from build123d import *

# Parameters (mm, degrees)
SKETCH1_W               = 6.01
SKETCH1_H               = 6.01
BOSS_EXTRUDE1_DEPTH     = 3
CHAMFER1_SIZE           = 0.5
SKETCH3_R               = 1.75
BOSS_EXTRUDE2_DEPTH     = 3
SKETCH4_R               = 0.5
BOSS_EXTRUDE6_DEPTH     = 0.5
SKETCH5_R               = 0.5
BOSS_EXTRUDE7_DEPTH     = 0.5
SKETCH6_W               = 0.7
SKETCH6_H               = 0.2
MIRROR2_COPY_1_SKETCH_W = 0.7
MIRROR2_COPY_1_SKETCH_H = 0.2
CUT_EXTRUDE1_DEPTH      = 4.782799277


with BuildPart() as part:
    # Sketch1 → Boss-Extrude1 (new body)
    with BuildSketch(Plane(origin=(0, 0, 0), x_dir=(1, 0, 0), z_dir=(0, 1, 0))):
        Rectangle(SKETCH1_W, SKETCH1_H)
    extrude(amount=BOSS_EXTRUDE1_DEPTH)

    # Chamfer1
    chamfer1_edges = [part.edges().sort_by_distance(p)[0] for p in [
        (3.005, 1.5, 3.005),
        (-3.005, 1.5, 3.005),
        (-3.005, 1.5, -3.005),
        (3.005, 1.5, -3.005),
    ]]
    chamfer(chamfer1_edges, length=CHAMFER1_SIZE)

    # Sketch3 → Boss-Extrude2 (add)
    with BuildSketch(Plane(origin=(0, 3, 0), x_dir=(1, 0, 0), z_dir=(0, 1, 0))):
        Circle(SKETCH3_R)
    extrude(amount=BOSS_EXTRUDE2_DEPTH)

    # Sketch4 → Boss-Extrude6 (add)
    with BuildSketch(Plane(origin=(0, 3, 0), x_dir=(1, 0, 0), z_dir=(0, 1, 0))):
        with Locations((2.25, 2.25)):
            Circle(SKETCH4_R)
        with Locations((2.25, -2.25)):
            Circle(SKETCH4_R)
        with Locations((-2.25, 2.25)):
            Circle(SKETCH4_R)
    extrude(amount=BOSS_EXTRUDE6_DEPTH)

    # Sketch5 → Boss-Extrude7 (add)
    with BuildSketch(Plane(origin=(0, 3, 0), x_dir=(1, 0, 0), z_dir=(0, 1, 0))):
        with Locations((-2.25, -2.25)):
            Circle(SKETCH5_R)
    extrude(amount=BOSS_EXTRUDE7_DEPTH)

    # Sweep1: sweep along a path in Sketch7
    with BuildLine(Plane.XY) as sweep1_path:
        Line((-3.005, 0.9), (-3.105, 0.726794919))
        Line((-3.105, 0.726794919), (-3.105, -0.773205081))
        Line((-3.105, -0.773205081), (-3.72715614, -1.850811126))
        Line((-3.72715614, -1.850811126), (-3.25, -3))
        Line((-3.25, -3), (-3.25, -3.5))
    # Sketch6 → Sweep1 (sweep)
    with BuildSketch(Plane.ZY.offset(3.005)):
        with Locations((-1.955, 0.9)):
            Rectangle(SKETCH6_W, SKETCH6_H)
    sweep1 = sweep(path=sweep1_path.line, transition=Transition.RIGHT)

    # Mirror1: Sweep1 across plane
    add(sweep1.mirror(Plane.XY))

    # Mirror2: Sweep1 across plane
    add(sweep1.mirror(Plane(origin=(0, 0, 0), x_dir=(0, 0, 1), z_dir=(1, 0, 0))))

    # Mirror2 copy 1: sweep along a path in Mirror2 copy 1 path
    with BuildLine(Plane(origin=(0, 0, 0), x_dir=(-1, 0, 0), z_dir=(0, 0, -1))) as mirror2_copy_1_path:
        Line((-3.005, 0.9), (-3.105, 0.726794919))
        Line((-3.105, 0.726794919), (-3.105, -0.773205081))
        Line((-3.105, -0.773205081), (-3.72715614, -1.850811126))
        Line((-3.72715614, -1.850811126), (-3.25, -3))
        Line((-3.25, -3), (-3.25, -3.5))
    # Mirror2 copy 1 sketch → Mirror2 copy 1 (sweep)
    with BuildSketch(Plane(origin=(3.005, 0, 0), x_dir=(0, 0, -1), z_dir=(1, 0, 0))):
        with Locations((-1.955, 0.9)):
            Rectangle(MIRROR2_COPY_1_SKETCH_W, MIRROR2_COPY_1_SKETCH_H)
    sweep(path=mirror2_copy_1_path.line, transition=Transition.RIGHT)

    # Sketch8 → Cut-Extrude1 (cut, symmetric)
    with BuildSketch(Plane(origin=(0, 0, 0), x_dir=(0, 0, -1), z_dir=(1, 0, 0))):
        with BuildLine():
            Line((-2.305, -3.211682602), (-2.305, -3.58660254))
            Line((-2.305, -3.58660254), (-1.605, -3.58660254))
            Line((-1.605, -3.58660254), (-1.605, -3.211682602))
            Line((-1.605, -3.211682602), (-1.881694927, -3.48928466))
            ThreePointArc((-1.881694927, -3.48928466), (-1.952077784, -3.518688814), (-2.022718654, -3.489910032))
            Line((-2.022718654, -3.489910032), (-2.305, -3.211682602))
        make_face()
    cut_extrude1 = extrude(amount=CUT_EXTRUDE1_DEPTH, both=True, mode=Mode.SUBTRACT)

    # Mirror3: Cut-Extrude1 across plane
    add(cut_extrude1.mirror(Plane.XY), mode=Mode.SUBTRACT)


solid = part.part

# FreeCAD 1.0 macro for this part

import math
import FreeCAD as App
import Part
import Sketcher

V = App.Vector
Q = App.Units.Quantity


def edges_at(feature, points):
    """Names of the edges that pass closest to the given points."""
    edges = feature.Shape.Edges
    near = lambda p: min(range(len(edges)), key=lambda i: edges[i].distToShape(Part.Vertex(*p))[0])
    return sorted({f"Edge{near(p) + 1}" for p in points})


def add_polygon(sketch, points):
    """Adds a closed chain of lines whose ends are joined by coincident constraints."""
    first, n = sketch.GeometryCount, len(points)
    for a, b in zip(points, points[1:] + points[:1]):
        sketch.addGeometry(Part.LineSegment(App.Vector(*a, 0), App.Vector(*b, 0)), False)
    for i in range(n):
        sketch.addConstraint(Sketcher.Constraint("Coincident", first + i, 2, first + (i + 1) % n, 1))

doc = App.newDocument("Part")
body = doc.addObject("PartDesign::Body", "Body")

sketch1 = body.newObject("Sketcher::SketchObject", "Sketch")
sketch1.AttachmentSupport = (doc.getObject("XZ_Plane"), [""])
sketch1.MapMode = "FlatFace"
add_polygon(sketch1, [(-3.005, -3.005), (-3.005, 3.005), (3.005, 3.005), (3.005, -3.005)])
sketch1.addConstraint([
    Sketcher.Constraint("Vertical", 0),
    Sketcher.Constraint("Horizontal", 1),
    Sketcher.Constraint("Vertical", 2),
    Sketcher.Constraint("Horizontal", 3),
    Sketcher.Constraint("Symmetric", 0, 2, 2, 2, -1, 1),
    Sketcher.Constraint("Equal", 3, 0),
    Sketcher.Constraint("DistanceX", 1, 1, 1, 2, 6.01),
])
pad1 = body.newObject("PartDesign::Pad", "Pad")
pad1.Profile = sketch1
pad1.Length = 3
pad1.Reversed = True
doc.recompute()

chamfer = body.newObject("PartDesign::Chamfer", "Chamfer")
chamfer.Base = (pad1, edges_at(pad1, [
    (3.005, 1.5, 3.005),
    (-3.005, 1.5, 3.005),
    (-3.005, 1.5, -3.005),
    (3.005, 1.5, -3.005),
]))
chamfer.Size = 0.5

sketch2 = body.newObject("Sketcher::SketchObject", "Sketch001")
sketch2.AttachmentSupport = (doc.getObject("XZ_Plane"), [""])
sketch2.MapMode = "FlatFace"
sketch2.AttachmentOffset = App.Placement(V(0, 0, -3), App.Rotation())
sketch2.addGeometry(Part.Circle(V(0, 0, 0), V(0, 0, 1), 1.75), False)
sketch2.addConstraint([
    Sketcher.Constraint("Coincident", 0, 3, -1, 1),
    Sketcher.Constraint("Diameter", 0, 3.5),
])
pad2 = body.newObject("PartDesign::Pad", "Pad001")
pad2.Profile = sketch2
pad2.Length = 3
pad2.Reversed = True

sketch3 = body.newObject("Sketcher::SketchObject", "Sketch002")
sketch3.AttachmentSupport = (doc.getObject("XZ_Plane"), [""])
sketch3.MapMode = "FlatFace"
sketch3.AttachmentOffset = App.Placement(V(0, 0, -3), App.Rotation())
sketch3.addGeometry([
    Part.Circle(V(2.25, -2.25, 0), V(0, 0, 1), 0.5),
    Part.Circle(V(2.25, 2.25, 0), V(0, 0, 1), 0.5),
    Part.Circle(V(-2.25, -2.25, 0), V(0, 0, 1), 0.5),
], False)
sketch3.addConstraint([
    Sketcher.Constraint("Equal", 0, 1),
    Sketcher.Constraint("Equal", 1, 2),
    Sketcher.Constraint("Symmetric", 1, 3, 2, 3, -1, 1),
    Sketcher.Constraint("Symmetric", 0, 3, 2, 3, -2),
    Sketcher.Constraint("Diameter", 0, 1.0),
    Sketcher.Constraint("DistanceY", 0, 3, 1, 3, 4.5),
    Sketcher.Constraint("DistanceX", 2, 3, 0, 3, 4.5),
])
pad3 = body.newObject("PartDesign::Pad", "Pad002")
pad3.Profile = sketch3
pad3.Length = 0.5
pad3.Reversed = True

sketch4 = body.newObject("Sketcher::SketchObject", "Sketch003")
sketch4.AttachmentSupport = (doc.getObject("XZ_Plane"), [""])
sketch4.MapMode = "FlatFace"
sketch4.AttachmentOffset = App.Placement(V(0, 0, -3), App.Rotation())
sketch4.addGeometry(Part.Circle(V(-2.25, 2.25, 0), V(0, 0, 1), 0.5), False)
sketch4.addConstraint([
    Sketcher.Constraint("Diameter", 0, 1.0),
    Sketcher.Constraint("DistanceX", 0, 3, -1, 1, 2.25),
    Sketcher.Constraint("DistanceY", -1, 1, 0, 3, 2.25),
])
pad4 = body.newObject("PartDesign::Pad", "Pad003")
pad4.Profile = sketch4
pad4.Length = 0.5
pad4.Reversed = True

sketch5 = body.newObject("Sketcher::SketchObject", "Sketch004")
sketch5.AttachmentSupport = (doc.getObject("YZ_Plane"), [""])
sketch5.MapMode = "FlatFace"
sketch5.AttachmentOffset = App.Placement(V(0, 0, -3.005), App.Rotation())
add_polygon(sketch5, [(1, -2.305), (0.8, -2.305), (0.8, -1.605), (1, -1.605)])
sketch5.addConstraint([
    Sketcher.Constraint("Horizontal", 0),
    Sketcher.Constraint("Vertical", 1),
    Sketcher.Constraint("Horizontal", 2),
    Sketcher.Constraint("Vertical", 3),
    Sketcher.Constraint("DistanceX", 0, 2, 0, 1, 0.2),
    Sketcher.Constraint("DistanceY", 1, 1, 1, 2, 0.7),
    Sketcher.Constraint("DistanceX", -1, 1, 2, 2, 1.0),
    Sketcher.Constraint("DistanceY", 0, 2, -1, 1, 2.305),
])

sketch6 = body.newObject("Sketcher::SketchObject", "Sketch005")
sketch6.AttachmentSupport = (doc.getObject("XY_Plane"), [""])
sketch6.MapMode = "FlatFace"
sketch6.addGeometry([
    Part.LineSegment(V(-3.005, 0.9, 0), V(-3.105, 0.726795, 0)),
    Part.LineSegment(V(-3.105, 0.726795, 0), V(-3.105, -0.773205, 0)),
    Part.LineSegment(V(-3.105, -0.773205, 0), V(-3.727156, -1.850811, 0)),
    Part.LineSegment(V(-3.727156, -1.850811, 0), V(-3.25, -3, 0)),
    Part.LineSegment(V(-3.25, -3, 0), V(-3.25, -3.5, 0)),
], False)
sketch6.addConstraint([
    Sketcher.Constraint("Coincident", 0, 2, 1, 1),
    Sketcher.Constraint("Coincident", 1, 2, 2, 1),
    Sketcher.Constraint("Coincident", 2, 2, 3, 1),
    Sketcher.Constraint("Coincident", 3, 2, 4, 1),
    Sketcher.Constraint("Vertical", 1),
    Sketcher.Constraint("Vertical", 4),
    Sketcher.Constraint("Parallel", 0, 2),
    Sketcher.Constraint("Equal", 2, 3),
    Sketcher.Constraint("Angle", 0, Q("-120 deg")),
    Sketcher.Constraint("DistanceY", 1, 2, 1, 1, 1.5),
    Sketcher.Constraint("DistanceY", 4, 2, 4, 1, 0.5),
    Sketcher.Constraint("DistanceY", 3, 2, -1, 1, 3.0),
    Sketcher.Constraint("Distance", 0, 0.2),
    Sketcher.Constraint("DistanceY", -1, 1, 0, 1, 0.9),
    Sketcher.Constraint("DistanceX", 3, 2, -1, 1, 3.25),
    Sketcher.Constraint("DistanceX", 0, 1, -1, 1, 3.005),
])
doc.recompute()

additivepipe = body.newObject("PartDesign::AdditivePipe", "AdditivePipe")
additivepipe.Profile = sketch5
additivepipe.Spine = (sketch6, ["Edge1", "Edge2", "Edge3", "Edge4", "Edge5"])
additivepipe.Transition = "Right corner"
doc.recompute()

mirrored = body.newObject("PartDesign::Mirrored", "Mirrored")
mirrored.Originals = [additivepipe]
mirrored.MirrorPlane = (doc.getObject("XY_Plane"), [""])
body.Tip = mirrored
doc.recompute()

mirrored2 = body.newObject("PartDesign::Mirrored", "Mirrored001")
mirrored2.Originals = [additivepipe]
mirrored2.MirrorPlane = (doc.getObject("YZ_Plane"), [""])
body.Tip = mirrored2

sketch7 = body.newObject("Sketcher::SketchObject", "Sketch006")
sketch7.AttachmentSupport = (doc.getObject("YZ_Plane"), [""])
sketch7.MapMode = "FlatFace"
sketch7.AttachmentOffset = App.Placement(V(0, 0, 3.005), App.Rotation())
add_polygon(sketch7, [(1, 2.305), (0.8, 2.305), (0.8, 1.605), (1, 1.605)])
sketch7.addConstraint([
    Sketcher.Constraint("Horizontal", 0),
    Sketcher.Constraint("Vertical", 1),
    Sketcher.Constraint("Horizontal", 2),
    Sketcher.Constraint("Vertical", 3),
    Sketcher.Constraint("DistanceX", 0, 2, 0, 1, 0.2),
    Sketcher.Constraint("DistanceY", 1, 2, 1, 1, 0.7),
    Sketcher.Constraint("DistanceX", -1, 1, 2, 2, 1.0),
    Sketcher.Constraint("DistanceY", -1, 1, 0, 2, 2.305),
])

sketch8 = body.newObject("Sketcher::SketchObject", "Sketch007")
sketch8.AttachmentSupport = (doc.getObject("XY_Plane"), [""])
sketch8.MapMode = "FlatFace"
sketch8.addGeometry([
    Part.LineSegment(V(3.005, 0.9, 0), V(3.105, 0.726795, 0)),
    Part.LineSegment(V(3.105, 0.726795, 0), V(3.105, -0.773205, 0)),
    Part.LineSegment(V(3.105, -0.773205, 0), V(3.727156, -1.850811, 0)),
    Part.LineSegment(V(3.727156, -1.850811, 0), V(3.25, -3, 0)),
    Part.LineSegment(V(3.25, -3, 0), V(3.25, -3.5, 0)),
], False)
sketch8.addConstraint([
    Sketcher.Constraint("Coincident", 0, 2, 1, 1),
    Sketcher.Constraint("Coincident", 1, 2, 2, 1),
    Sketcher.Constraint("Coincident", 2, 2, 3, 1),
    Sketcher.Constraint("Coincident", 3, 2, 4, 1),
    Sketcher.Constraint("Vertical", 1),
    Sketcher.Constraint("Vertical", 4),
    Sketcher.Constraint("Parallel", 0, 2),
    Sketcher.Constraint("Equal", 2, 3),
    Sketcher.Constraint("Angle", 0, Q("-60 deg")),
    Sketcher.Constraint("DistanceY", 1, 2, 1, 1, 1.5),
    Sketcher.Constraint("DistanceY", 4, 2, 4, 1, 0.5),
    Sketcher.Constraint("DistanceY", 3, 2, -1, 1, 3.0),
    Sketcher.Constraint("Distance", 0, 0.2),
    Sketcher.Constraint("DistanceY", -1, 1, 0, 1, 0.9),
    Sketcher.Constraint("DistanceX", -1, 1, 3, 2, 3.25),
    Sketcher.Constraint("DistanceX", -1, 1, 0, 1, 3.005),
])
doc.recompute()

additivepipe2 = body.newObject("PartDesign::AdditivePipe", "AdditivePipe001")
additivepipe2.Profile = sketch7
additivepipe2.Spine = (sketch8, ["Edge1", "Edge2", "Edge3", "Edge4", "Edge5"])
additivepipe2.Transition = "Right corner"

sketch9 = body.newObject("Sketcher::SketchObject", "Sketch008")
sketch9.AttachmentSupport = (doc.getObject("YZ_Plane"), [""])
sketch9.MapMode = "FlatFace"
sketch9.addGeometry([
    Part.LineSegment(V(-3.211683, 2.305, 0), V(-3.586603, 2.305, 0)),
    Part.LineSegment(V(-3.586603, 2.305, 0), V(-3.586603, 1.605, 0)),
    Part.LineSegment(V(-3.586603, 1.605, 0), V(-3.211683, 1.605, 0)),
    Part.LineSegment(V(-3.211683, 1.605, 0), V(-3.489285, 1.881695, 0)),
    Part.ArcOfCircle(Part.Circle(V(-3.41869, 1.952521, 0), V(0, 0, 1), 0.1), math.radians(135.414388), math.radians(225.093767)),
    Part.LineSegment(V(-3.48991, 2.022719, 0), V(-3.211683, 2.305, 0)),
], False)
sketch9.addConstraint([
    Sketcher.Constraint("Coincident", 0, 2, 1, 1),
    Sketcher.Constraint("Coincident", 1, 2, 2, 1),
    Sketcher.Constraint("Coincident", 2, 2, 3, 1),
    Sketcher.Constraint("Tangent", 3, 2, 4, 2),
    Sketcher.Constraint("Tangent", 4, 1, 5, 1),
    Sketcher.Constraint("Coincident", 5, 2, 0, 1),
    Sketcher.Constraint("Horizontal", 0),
    Sketcher.Constraint("Vertical", 1),
    Sketcher.Constraint("Horizontal", 2),
    Sketcher.Constraint("Vertical", 2, 2, 5, 2),
    Sketcher.Constraint("Radius", 4, 0.1),
    Sketcher.Constraint("DistanceY", 1, 2, 1, 1, 0.7),
    Sketcher.Constraint("DistanceY", -1, 1, 0, 2, 2.305),
    Sketcher.Constraint("DistanceX", 0, 2, 0, 1, 0.37492),
    Sketcher.Constraint("Distance", 5, 0.39635),
    Sketcher.Constraint("DistanceX", 4, 3, -1, 1, 3.41869),
    Sketcher.Constraint("DistanceY", -1, 1, 4, 3, 1.952521),
])
pocket1 = body.newObject("PartDesign::Pocket", "Pocket")
pocket1.Profile = sketch9
pocket1.Length = 9.565599
pocket1.Midplane = True
doc.recompute()

mirrored3 = body.newObject("PartDesign::Mirrored", "Mirrored002")
mirrored3.Originals = [pocket1]
mirrored3.MirrorPlane = (doc.getObject("XY_Plane"), [""])
body.Tip = mirrored3

doc.recompute()
